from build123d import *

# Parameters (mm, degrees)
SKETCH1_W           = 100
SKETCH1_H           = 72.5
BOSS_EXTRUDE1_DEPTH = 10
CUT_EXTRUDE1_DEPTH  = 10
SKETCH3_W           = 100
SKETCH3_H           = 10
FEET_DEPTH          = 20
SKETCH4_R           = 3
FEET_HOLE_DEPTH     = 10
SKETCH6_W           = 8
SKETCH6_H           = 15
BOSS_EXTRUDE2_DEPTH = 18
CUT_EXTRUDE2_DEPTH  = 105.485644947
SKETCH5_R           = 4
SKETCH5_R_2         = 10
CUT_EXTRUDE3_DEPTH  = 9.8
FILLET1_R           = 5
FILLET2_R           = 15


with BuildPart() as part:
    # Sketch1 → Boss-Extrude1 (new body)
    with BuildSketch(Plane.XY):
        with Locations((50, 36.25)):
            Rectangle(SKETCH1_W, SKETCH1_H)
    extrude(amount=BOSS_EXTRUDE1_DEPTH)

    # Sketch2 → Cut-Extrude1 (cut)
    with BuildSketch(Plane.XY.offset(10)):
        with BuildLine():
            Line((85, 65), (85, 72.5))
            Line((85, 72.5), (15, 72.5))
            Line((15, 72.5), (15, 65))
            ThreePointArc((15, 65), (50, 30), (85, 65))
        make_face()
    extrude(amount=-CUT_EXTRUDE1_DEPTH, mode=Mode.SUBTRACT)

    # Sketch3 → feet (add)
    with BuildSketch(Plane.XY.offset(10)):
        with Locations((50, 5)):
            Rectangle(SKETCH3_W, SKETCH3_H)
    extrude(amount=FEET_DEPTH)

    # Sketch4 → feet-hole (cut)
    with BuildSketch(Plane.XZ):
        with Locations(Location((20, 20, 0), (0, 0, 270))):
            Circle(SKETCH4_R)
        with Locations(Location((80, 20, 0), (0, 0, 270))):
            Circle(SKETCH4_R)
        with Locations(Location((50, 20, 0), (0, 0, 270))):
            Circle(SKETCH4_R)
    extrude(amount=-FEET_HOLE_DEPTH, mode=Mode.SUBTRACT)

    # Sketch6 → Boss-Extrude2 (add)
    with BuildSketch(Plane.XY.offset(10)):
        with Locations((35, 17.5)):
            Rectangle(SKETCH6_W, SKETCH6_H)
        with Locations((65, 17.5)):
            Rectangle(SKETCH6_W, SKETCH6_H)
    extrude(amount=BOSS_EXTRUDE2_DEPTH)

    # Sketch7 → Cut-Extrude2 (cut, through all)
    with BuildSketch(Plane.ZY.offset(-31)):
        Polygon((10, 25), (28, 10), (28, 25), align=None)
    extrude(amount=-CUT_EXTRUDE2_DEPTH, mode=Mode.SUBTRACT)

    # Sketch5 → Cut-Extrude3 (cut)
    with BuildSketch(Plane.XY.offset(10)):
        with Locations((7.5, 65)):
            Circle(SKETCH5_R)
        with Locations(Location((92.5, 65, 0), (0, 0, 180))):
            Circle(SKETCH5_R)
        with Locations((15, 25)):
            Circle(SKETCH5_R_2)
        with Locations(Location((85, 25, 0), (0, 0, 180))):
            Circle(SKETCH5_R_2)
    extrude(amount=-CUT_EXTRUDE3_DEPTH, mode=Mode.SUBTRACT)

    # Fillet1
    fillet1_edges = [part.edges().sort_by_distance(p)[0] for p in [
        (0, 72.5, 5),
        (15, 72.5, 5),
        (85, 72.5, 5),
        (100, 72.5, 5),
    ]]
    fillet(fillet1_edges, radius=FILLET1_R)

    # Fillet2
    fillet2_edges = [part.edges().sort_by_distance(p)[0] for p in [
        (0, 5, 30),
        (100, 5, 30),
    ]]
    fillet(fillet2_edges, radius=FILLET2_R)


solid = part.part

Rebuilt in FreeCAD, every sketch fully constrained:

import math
import FreeCAD as App
import Part
import Sketcher
from FreeCAD import Vector


def edges_at(feature, points):
    """Names of the edges that pass closest to the given points."""
    edges = feature.Shape.Edges
    near = lambda p: min(range(len(edges)), key=lambda i: edges[i].distToShape(Part.Vertex(*p))[0])
    return sorted({f"Edge{near(p) + 1}" for p in points})

doc = App.newDocument("Part")
body = doc.addObject("PartDesign::Body", "Body")

sketch1 = doc.addObject("Sketcher::SketchObject", "Sketch")
body.addObject(sketch1)
sketch1.AttachmentSupport = (doc.XY_Plane, [""])
sketch1.MapMode = "FlatFace"
sketch1.addGeometry([
    Part.LineSegment(Vector(0, 72.5, 0), Vector(0, 0, 0)),
    Part.LineSegment(Vector(0, 0, 0), Vector(100, 0, 0)),
    Part.LineSegment(Vector(100, 0, 0), Vector(100, 72.5, 0)),
    Part.LineSegment(Vector(100, 72.5, 0), Vector(0, 72.5, 0)),
], False)
sketch1.addConstraint([
    Sketcher.Constraint("Coincident", 0, 2, 1, 1),
    Sketcher.Constraint("Coincident", 1, 2, 2, 1),
    Sketcher.Constraint("Coincident", 2, 2, 3, 1),
    Sketcher.Constraint("Coincident", 3, 2, 0, 1),
    Sketcher.Constraint("Vertical", 0),
    Sketcher.Constraint("Horizontal", 1),
    Sketcher.Constraint("Vertical", 2),
    Sketcher.Constraint("Horizontal", 3),
    Sketcher.Constraint("Coincident", 0, 2, -1, 1),
    Sketcher.Constraint("DistanceX", 1, 1, 1, 2, 100.0),
    Sketcher.Constraint("DistanceY", 0, 2, 0, 1, 72.5),
])
pad1 = doc.addObject("PartDesign::Pad", "Pad")
body.addObject(pad1)
pad1.Profile = sketch1
pad1.Length = 10

sketch2 = doc.addObject("Sketcher::SketchObject", "Sketch001")
body.addObject(sketch2)
sketch2.AttachmentSupport = (doc.XY_Plane, [""])
sketch2.MapMode = "FlatFace"
sketch2.AttachmentOffset = App.Placement(Vector(0, 0, 10), App.Rotation())
sketch2.addGeometry([
    Part.LineSegment(Vector(85, 65, 0), Vector(85, 72.5, 0)),
    Part.LineSegment(Vector(85, 72.5, 0), Vector(15, 72.5, 0)),
    Part.LineSegment(Vector(15, 72.5, 0), Vector(15, 65, 0)),
    Part.ArcOfCircle(Part.Circle(Vector(50, 65, 0), Vector(0, 0, 1), 35), math.radians(180), math.radians(360)),
], False)
sketch2.addConstraint([
    Sketcher.Constraint("Coincident", 0, 2, 1, 1),
    Sketcher.Constraint("Coincident", 1, 2, 2, 1),
    Sketcher.Constraint("Tangent", 2, 2, 3, 1),
    Sketcher.Constraint("Tangent", 3, 2, 0, 1),
    Sketcher.Constraint("Vertical", 0),
    Sketcher.Constraint("Horizontal", 1),
    Sketcher.Constraint("Vertical", 2),
    Sketcher.Constraint("Radius", 3, 35.0),
    Sketcher.Constraint("DistanceY", 0, 1, 0, 2, 7.5),
    Sketcher.Constraint("DistanceX", -1, 1, 3, 3, 50.0),
    Sketcher.Constraint("DistanceY", -1, 1, 3, 3, 65.0),
])
pocket1 = doc.addObject("PartDesign::Pocket", "Pocket")
body.addObject(pocket1)
pocket1.Profile = sketch2
pocket1.Length = 10

sketch3 = doc.addObject("Sketcher::SketchObject", "Sketch002")
body.addObject(sketch3)
sketch3.AttachmentSupport = (doc.XY_Plane, [""])
sketch3.MapMode = "FlatFace"
sketch3.AttachmentOffset = App.Placement(Vector(0, 0, 10), App.Rotation())
sketch3.addGeometry([
    Part.LineSegment(Vector(0, 10, 0), Vector(0, 0, 0)),
    Part.LineSegment(Vector(0, 0, 0), Vector(100, 0, 0)),
    Part.LineSegment(Vector(100, 0, 0), Vector(100, 10, 0)),
    Part.LineSegment(Vector(100, 10, 0), Vector(0, 10, 0)),
], False)
sketch3.addConstraint([
    Sketcher.Constraint("Coincident", 0, 2, 1, 1),
    Sketcher.Constraint("Coincident", 1, 2, 2, 1),
    Sketcher.Constraint("Coincident", 2, 2, 3, 1),
    Sketcher.Constraint("Coincident", 3, 2, 0, 1),
    Sketcher.Constraint("Vertical", 0),
    Sketcher.Constraint("Horizontal", 1),
    Sketcher.Constraint("Vertical", 2),
    Sketcher.Constraint("Horizontal", 3),
    Sketcher.Constraint("Coincident", 0, 2, -1, 1),
    Sketcher.Constraint("DistanceX", 1, 1, 1, 2, 100.0),
    Sketcher.Constraint("DistanceY", 0, 2, 0, 1, 10.0),
])
pad2 = doc.addObject("PartDesign::Pad", "Pad001")
body.addObject(pad2)
pad2.Profile = sketch3
pad2.Length = 20

sketch4 = doc.addObject("Sketcher::SketchObject", "Sketch003")
body.addObject(sketch4)
sketch4.AttachmentSupport = (doc.XZ_Plane, [""])
sketch4.MapMode = "FlatFace"
sketch4.addGeometry([
    Part.Circle(Vector(20, 20, 0), Vector(0, 0, 1), 3),
    Part.Circle(Vector(80, 20, 0), Vector(0, 0, 1), 3),
    Part.Circle(Vector(50, 20, 0), Vector(0, 0, 1), 3),
], False)
sketch4.addConstraint([
    Sketcher.Constraint("Equal", 0, 1),
    Sketcher.Constraint("Equal", 1, 2),
    Sketcher.Constraint("Horizontal", 0, 3, 1, 3),
    Sketcher.Constraint("Horizontal", 1, 3, 2, 3),
    Sketcher.Constraint("Diameter", 0, 6.0),
    Sketcher.Constraint("DistanceX", -1, 1, 0, 3, 20.0),
    Sketcher.Constraint("DistanceY", -1, 1, 0, 3, 20.0),
    Sketcher.Constraint("DistanceX", -1, 1, 1, 3, 80.0),
    Sketcher.Constraint("DistanceX", -1, 1, 2, 3, 50.0),
])
pocket2 = doc.addObject("PartDesign::Pocket", "Pocket001")
body.addObject(pocket2)
pocket2.Profile = sketch4
pocket2.Length = 10

sketch5 = doc.addObject("Sketcher::SketchObject", "Sketch004")
body.addObject(sketch5)
sketch5.AttachmentSupport = (doc.XY_Plane, [""])
sketch5.MapMode = "FlatFace"
sketch5.AttachmentOffset = App.Placement(Vector(0, 0, 10), App.Rotation())
sketch5.addGeometry([
    Part.LineSegment(Vector(31, 25, 0), Vector(31, 10, 0)),
    Part.LineSegment(Vector(31, 10, 0), Vector(39, 10, 0)),
    Part.LineSegment(Vector(39, 10, 0), Vector(39, 25, 0)),
    Part.LineSegment(Vector(39, 25, 0), Vector(31, 25, 0)),
    Part.LineSegment(Vector(61, 25, 0), Vector(61, 10, 0)),
    Part.LineSegment(Vector(61, 10, 0), Vector(69, 10, 0)),
    Part.LineSegment(Vector(69, 10, 0), Vector(69, 25, 0)),
    Part.LineSegment(Vector(69, 25, 0), Vector(61, 25, 0)),
], False)
sketch5.addConstraint([
    Sketcher.Constraint("Coincident", 0, 2, 1, 1),
    Sketcher.Constraint("Coincident", 1, 2, 2, 1),
    Sketcher.Constraint("Coincident", 2, 2, 3, 1),
    Sketcher.Constraint("Coincident", 3, 2, 0, 1),
    Sketcher.Constraint("Coincident", 4, 2, 5, 1),
    Sketcher.Constraint("Coincident", 5, 2, 6, 1),
    Sketcher.Constraint("Coincident", 6, 2, 7, 1),
    Sketcher.Constraint("Coincident", 7, 2, 4, 1),
    Sketcher.Constraint("Vertical", 0),
    Sketcher.Constraint("Horizontal", 1),
    Sketcher.Constraint("Vertical", 2),
    Sketcher.Constraint("Horizontal", 3),
    Sketcher.Constraint("Vertical", 4),
    Sketcher.Constraint("Horizontal", 5),
    Sketcher.Constraint("Vertical", 6),
    Sketcher.Constraint("Horizontal", 7),
    Sketcher.Constraint("Horizontal", 1, 2, 4, 2),
    Sketcher.Constraint("Horizontal", 3, 2, 6, 2),
    Sketcher.Constraint("Equal", 3, 5),
    Sketcher.Constraint("DistanceX", 1, 1, 1, 2, 8.0),
    Sketcher.Constraint("DistanceY", 0, 2, 0, 1, 15.0),
    Sketcher.Constraint("DistanceX", -1, 1, 0, 2, 31.0),
    Sketcher.Constraint("DistanceY", -1, 1, 0, 2, 10.0),
    Sketcher.Constraint("DistanceX", -1, 1, 4, 2, 61.0),
])
pad3 = doc.addObject("PartDesign::Pad", "Pad002")
body.addObject(pad3)
pad3.Profile = sketch5
pad3.Length = 18

sketch6 = doc.addObject("Sketcher::SketchObject", "Sketch005")
body.addObject(sketch6)
sketch6.AttachmentSupport = (doc.YZ_Plane, [""])
sketch6.MapMode = "FlatFace"
sketch6.AttachmentOffset = App.Placement(Vector(0, 0, 31), App.Rotation())
sketch6.addGeometry([
    Part.LineSegment(Vector(25, 10, 0), Vector(10, 28, 0)),
    Part.LineSegment(Vector(10, 28, 0), Vector(25, 28, 0)),
    Part.LineSegment(Vector(25, 28, 0), Vector(25, 10, 0)),
], False)
sketch6.addConstraint([
    Sketcher.Constraint("Coincident", 0, 2, 1, 1),
    Sketcher.Constraint("Coincident", 1, 2, 2, 1),
    Sketcher.Constraint("Coincident", 2, 2, 0, 1),
    Sketcher.Constraint("Horizontal", 1),
    Sketcher.Constraint("Vertical", 2),
    Sketcher.Constraint("DistanceX", 1, 1, 1, 2, 15.0),
    Sketcher.Constraint("DistanceY", 2, 2, 2, 1, 18.0),
    Sketcher.Constraint("DistanceX", -1, 1, 0, 2, 10.0),
    Sketcher.Constraint("DistanceY", -1, 1, 0, 2, 28.0),
])
pocket3 = doc.addObject("PartDesign::Pocket", "Pocket002")
body.addObject(pocket3)
pocket3.Profile = sketch6
pocket3.Type = "ThroughAll"
pocket3.Reversed = True

sketch7 = doc.addObject("Sketcher::SketchObject", "Sketch006")
body.addObject(sketch7)
sketch7.AttachmentSupport = (doc.XY_Plane, [""])
sketch7.MapMode = "FlatFace"
sketch7.AttachmentOffset = App.Placement(Vector(0, 0, 10), App.Rotation())
sketch7.addGeometry([
    Part.Circle(Vector(7.5, 65, 0), Vector(0, 0, 1), 4),
    Part.Circle(Vector(92.5, 65, 0), Vector(0, 0, 1), 4),
    Part.Circle(Vector(15, 25, 0), Vector(0, 0, 1), 10),
    Part.Circle(Vector(85, 25, 0), Vector(0, 0, 1), 10),
], False)
sketch7.addConstraint([
    Sketcher.Constraint("Equal", 0, 1),
    Sketcher.Constraint("Equal", 2, 3),
    Sketcher.Constraint("Horizontal", 0, 3, 1, 3),
    Sketcher.Constraint("Horizontal", 2, 3, 3, 3),
    Sketcher.Constraint("Diameter", 0, 8.0),
    Sketcher.Constraint("Diameter", 2, 20.0),
    Sketcher.Constraint("DistanceY", -1, 1, 0, 3, 65.0),
    Sketcher.Constraint("DistanceX", -1, 1, 2, 3, 15.0),
    Sketcher.Constraint("DistanceY", -1, 1, 2, 3, 25.0),
    Sketcher.Constraint("DistanceX", -1, 1, 3, 3, 85.0),
    Sketcher.Constraint("DistanceX", 0, 3, 1, 3, 85.0),
    Sketcher.Constraint("DistanceX", -1, 1, 0, 3, 7.5),
])
pocket4 = doc.addObject("PartDesign::Pocket", "Pocket003")
body.addObject(pocket4)
pocket4.Profile = sketch7
pocket4.Length = 9.8
doc.recompute()

fillet = doc.addObject("PartDesign::Fillet", "Fillet")
body.addObject(fillet)
fillet.Base = (pocket4, edges_at(pocket4, [
    (0, 72.5, 5),
    (15, 72.5, 5),
    (85, 72.5, 5),
    (100, 72.5, 5),
]))
fillet.Radius = 5
doc.recompute()

fillet2 = doc.addObject("PartDesign::Fillet", "Fillet001")
body.addObject(fillet2)
fillet2.Base = (fillet, edges_at(fillet, [(0, 5, 30), (100, 5, 30)]))
fillet2.Radius = 15

doc.recompute()
